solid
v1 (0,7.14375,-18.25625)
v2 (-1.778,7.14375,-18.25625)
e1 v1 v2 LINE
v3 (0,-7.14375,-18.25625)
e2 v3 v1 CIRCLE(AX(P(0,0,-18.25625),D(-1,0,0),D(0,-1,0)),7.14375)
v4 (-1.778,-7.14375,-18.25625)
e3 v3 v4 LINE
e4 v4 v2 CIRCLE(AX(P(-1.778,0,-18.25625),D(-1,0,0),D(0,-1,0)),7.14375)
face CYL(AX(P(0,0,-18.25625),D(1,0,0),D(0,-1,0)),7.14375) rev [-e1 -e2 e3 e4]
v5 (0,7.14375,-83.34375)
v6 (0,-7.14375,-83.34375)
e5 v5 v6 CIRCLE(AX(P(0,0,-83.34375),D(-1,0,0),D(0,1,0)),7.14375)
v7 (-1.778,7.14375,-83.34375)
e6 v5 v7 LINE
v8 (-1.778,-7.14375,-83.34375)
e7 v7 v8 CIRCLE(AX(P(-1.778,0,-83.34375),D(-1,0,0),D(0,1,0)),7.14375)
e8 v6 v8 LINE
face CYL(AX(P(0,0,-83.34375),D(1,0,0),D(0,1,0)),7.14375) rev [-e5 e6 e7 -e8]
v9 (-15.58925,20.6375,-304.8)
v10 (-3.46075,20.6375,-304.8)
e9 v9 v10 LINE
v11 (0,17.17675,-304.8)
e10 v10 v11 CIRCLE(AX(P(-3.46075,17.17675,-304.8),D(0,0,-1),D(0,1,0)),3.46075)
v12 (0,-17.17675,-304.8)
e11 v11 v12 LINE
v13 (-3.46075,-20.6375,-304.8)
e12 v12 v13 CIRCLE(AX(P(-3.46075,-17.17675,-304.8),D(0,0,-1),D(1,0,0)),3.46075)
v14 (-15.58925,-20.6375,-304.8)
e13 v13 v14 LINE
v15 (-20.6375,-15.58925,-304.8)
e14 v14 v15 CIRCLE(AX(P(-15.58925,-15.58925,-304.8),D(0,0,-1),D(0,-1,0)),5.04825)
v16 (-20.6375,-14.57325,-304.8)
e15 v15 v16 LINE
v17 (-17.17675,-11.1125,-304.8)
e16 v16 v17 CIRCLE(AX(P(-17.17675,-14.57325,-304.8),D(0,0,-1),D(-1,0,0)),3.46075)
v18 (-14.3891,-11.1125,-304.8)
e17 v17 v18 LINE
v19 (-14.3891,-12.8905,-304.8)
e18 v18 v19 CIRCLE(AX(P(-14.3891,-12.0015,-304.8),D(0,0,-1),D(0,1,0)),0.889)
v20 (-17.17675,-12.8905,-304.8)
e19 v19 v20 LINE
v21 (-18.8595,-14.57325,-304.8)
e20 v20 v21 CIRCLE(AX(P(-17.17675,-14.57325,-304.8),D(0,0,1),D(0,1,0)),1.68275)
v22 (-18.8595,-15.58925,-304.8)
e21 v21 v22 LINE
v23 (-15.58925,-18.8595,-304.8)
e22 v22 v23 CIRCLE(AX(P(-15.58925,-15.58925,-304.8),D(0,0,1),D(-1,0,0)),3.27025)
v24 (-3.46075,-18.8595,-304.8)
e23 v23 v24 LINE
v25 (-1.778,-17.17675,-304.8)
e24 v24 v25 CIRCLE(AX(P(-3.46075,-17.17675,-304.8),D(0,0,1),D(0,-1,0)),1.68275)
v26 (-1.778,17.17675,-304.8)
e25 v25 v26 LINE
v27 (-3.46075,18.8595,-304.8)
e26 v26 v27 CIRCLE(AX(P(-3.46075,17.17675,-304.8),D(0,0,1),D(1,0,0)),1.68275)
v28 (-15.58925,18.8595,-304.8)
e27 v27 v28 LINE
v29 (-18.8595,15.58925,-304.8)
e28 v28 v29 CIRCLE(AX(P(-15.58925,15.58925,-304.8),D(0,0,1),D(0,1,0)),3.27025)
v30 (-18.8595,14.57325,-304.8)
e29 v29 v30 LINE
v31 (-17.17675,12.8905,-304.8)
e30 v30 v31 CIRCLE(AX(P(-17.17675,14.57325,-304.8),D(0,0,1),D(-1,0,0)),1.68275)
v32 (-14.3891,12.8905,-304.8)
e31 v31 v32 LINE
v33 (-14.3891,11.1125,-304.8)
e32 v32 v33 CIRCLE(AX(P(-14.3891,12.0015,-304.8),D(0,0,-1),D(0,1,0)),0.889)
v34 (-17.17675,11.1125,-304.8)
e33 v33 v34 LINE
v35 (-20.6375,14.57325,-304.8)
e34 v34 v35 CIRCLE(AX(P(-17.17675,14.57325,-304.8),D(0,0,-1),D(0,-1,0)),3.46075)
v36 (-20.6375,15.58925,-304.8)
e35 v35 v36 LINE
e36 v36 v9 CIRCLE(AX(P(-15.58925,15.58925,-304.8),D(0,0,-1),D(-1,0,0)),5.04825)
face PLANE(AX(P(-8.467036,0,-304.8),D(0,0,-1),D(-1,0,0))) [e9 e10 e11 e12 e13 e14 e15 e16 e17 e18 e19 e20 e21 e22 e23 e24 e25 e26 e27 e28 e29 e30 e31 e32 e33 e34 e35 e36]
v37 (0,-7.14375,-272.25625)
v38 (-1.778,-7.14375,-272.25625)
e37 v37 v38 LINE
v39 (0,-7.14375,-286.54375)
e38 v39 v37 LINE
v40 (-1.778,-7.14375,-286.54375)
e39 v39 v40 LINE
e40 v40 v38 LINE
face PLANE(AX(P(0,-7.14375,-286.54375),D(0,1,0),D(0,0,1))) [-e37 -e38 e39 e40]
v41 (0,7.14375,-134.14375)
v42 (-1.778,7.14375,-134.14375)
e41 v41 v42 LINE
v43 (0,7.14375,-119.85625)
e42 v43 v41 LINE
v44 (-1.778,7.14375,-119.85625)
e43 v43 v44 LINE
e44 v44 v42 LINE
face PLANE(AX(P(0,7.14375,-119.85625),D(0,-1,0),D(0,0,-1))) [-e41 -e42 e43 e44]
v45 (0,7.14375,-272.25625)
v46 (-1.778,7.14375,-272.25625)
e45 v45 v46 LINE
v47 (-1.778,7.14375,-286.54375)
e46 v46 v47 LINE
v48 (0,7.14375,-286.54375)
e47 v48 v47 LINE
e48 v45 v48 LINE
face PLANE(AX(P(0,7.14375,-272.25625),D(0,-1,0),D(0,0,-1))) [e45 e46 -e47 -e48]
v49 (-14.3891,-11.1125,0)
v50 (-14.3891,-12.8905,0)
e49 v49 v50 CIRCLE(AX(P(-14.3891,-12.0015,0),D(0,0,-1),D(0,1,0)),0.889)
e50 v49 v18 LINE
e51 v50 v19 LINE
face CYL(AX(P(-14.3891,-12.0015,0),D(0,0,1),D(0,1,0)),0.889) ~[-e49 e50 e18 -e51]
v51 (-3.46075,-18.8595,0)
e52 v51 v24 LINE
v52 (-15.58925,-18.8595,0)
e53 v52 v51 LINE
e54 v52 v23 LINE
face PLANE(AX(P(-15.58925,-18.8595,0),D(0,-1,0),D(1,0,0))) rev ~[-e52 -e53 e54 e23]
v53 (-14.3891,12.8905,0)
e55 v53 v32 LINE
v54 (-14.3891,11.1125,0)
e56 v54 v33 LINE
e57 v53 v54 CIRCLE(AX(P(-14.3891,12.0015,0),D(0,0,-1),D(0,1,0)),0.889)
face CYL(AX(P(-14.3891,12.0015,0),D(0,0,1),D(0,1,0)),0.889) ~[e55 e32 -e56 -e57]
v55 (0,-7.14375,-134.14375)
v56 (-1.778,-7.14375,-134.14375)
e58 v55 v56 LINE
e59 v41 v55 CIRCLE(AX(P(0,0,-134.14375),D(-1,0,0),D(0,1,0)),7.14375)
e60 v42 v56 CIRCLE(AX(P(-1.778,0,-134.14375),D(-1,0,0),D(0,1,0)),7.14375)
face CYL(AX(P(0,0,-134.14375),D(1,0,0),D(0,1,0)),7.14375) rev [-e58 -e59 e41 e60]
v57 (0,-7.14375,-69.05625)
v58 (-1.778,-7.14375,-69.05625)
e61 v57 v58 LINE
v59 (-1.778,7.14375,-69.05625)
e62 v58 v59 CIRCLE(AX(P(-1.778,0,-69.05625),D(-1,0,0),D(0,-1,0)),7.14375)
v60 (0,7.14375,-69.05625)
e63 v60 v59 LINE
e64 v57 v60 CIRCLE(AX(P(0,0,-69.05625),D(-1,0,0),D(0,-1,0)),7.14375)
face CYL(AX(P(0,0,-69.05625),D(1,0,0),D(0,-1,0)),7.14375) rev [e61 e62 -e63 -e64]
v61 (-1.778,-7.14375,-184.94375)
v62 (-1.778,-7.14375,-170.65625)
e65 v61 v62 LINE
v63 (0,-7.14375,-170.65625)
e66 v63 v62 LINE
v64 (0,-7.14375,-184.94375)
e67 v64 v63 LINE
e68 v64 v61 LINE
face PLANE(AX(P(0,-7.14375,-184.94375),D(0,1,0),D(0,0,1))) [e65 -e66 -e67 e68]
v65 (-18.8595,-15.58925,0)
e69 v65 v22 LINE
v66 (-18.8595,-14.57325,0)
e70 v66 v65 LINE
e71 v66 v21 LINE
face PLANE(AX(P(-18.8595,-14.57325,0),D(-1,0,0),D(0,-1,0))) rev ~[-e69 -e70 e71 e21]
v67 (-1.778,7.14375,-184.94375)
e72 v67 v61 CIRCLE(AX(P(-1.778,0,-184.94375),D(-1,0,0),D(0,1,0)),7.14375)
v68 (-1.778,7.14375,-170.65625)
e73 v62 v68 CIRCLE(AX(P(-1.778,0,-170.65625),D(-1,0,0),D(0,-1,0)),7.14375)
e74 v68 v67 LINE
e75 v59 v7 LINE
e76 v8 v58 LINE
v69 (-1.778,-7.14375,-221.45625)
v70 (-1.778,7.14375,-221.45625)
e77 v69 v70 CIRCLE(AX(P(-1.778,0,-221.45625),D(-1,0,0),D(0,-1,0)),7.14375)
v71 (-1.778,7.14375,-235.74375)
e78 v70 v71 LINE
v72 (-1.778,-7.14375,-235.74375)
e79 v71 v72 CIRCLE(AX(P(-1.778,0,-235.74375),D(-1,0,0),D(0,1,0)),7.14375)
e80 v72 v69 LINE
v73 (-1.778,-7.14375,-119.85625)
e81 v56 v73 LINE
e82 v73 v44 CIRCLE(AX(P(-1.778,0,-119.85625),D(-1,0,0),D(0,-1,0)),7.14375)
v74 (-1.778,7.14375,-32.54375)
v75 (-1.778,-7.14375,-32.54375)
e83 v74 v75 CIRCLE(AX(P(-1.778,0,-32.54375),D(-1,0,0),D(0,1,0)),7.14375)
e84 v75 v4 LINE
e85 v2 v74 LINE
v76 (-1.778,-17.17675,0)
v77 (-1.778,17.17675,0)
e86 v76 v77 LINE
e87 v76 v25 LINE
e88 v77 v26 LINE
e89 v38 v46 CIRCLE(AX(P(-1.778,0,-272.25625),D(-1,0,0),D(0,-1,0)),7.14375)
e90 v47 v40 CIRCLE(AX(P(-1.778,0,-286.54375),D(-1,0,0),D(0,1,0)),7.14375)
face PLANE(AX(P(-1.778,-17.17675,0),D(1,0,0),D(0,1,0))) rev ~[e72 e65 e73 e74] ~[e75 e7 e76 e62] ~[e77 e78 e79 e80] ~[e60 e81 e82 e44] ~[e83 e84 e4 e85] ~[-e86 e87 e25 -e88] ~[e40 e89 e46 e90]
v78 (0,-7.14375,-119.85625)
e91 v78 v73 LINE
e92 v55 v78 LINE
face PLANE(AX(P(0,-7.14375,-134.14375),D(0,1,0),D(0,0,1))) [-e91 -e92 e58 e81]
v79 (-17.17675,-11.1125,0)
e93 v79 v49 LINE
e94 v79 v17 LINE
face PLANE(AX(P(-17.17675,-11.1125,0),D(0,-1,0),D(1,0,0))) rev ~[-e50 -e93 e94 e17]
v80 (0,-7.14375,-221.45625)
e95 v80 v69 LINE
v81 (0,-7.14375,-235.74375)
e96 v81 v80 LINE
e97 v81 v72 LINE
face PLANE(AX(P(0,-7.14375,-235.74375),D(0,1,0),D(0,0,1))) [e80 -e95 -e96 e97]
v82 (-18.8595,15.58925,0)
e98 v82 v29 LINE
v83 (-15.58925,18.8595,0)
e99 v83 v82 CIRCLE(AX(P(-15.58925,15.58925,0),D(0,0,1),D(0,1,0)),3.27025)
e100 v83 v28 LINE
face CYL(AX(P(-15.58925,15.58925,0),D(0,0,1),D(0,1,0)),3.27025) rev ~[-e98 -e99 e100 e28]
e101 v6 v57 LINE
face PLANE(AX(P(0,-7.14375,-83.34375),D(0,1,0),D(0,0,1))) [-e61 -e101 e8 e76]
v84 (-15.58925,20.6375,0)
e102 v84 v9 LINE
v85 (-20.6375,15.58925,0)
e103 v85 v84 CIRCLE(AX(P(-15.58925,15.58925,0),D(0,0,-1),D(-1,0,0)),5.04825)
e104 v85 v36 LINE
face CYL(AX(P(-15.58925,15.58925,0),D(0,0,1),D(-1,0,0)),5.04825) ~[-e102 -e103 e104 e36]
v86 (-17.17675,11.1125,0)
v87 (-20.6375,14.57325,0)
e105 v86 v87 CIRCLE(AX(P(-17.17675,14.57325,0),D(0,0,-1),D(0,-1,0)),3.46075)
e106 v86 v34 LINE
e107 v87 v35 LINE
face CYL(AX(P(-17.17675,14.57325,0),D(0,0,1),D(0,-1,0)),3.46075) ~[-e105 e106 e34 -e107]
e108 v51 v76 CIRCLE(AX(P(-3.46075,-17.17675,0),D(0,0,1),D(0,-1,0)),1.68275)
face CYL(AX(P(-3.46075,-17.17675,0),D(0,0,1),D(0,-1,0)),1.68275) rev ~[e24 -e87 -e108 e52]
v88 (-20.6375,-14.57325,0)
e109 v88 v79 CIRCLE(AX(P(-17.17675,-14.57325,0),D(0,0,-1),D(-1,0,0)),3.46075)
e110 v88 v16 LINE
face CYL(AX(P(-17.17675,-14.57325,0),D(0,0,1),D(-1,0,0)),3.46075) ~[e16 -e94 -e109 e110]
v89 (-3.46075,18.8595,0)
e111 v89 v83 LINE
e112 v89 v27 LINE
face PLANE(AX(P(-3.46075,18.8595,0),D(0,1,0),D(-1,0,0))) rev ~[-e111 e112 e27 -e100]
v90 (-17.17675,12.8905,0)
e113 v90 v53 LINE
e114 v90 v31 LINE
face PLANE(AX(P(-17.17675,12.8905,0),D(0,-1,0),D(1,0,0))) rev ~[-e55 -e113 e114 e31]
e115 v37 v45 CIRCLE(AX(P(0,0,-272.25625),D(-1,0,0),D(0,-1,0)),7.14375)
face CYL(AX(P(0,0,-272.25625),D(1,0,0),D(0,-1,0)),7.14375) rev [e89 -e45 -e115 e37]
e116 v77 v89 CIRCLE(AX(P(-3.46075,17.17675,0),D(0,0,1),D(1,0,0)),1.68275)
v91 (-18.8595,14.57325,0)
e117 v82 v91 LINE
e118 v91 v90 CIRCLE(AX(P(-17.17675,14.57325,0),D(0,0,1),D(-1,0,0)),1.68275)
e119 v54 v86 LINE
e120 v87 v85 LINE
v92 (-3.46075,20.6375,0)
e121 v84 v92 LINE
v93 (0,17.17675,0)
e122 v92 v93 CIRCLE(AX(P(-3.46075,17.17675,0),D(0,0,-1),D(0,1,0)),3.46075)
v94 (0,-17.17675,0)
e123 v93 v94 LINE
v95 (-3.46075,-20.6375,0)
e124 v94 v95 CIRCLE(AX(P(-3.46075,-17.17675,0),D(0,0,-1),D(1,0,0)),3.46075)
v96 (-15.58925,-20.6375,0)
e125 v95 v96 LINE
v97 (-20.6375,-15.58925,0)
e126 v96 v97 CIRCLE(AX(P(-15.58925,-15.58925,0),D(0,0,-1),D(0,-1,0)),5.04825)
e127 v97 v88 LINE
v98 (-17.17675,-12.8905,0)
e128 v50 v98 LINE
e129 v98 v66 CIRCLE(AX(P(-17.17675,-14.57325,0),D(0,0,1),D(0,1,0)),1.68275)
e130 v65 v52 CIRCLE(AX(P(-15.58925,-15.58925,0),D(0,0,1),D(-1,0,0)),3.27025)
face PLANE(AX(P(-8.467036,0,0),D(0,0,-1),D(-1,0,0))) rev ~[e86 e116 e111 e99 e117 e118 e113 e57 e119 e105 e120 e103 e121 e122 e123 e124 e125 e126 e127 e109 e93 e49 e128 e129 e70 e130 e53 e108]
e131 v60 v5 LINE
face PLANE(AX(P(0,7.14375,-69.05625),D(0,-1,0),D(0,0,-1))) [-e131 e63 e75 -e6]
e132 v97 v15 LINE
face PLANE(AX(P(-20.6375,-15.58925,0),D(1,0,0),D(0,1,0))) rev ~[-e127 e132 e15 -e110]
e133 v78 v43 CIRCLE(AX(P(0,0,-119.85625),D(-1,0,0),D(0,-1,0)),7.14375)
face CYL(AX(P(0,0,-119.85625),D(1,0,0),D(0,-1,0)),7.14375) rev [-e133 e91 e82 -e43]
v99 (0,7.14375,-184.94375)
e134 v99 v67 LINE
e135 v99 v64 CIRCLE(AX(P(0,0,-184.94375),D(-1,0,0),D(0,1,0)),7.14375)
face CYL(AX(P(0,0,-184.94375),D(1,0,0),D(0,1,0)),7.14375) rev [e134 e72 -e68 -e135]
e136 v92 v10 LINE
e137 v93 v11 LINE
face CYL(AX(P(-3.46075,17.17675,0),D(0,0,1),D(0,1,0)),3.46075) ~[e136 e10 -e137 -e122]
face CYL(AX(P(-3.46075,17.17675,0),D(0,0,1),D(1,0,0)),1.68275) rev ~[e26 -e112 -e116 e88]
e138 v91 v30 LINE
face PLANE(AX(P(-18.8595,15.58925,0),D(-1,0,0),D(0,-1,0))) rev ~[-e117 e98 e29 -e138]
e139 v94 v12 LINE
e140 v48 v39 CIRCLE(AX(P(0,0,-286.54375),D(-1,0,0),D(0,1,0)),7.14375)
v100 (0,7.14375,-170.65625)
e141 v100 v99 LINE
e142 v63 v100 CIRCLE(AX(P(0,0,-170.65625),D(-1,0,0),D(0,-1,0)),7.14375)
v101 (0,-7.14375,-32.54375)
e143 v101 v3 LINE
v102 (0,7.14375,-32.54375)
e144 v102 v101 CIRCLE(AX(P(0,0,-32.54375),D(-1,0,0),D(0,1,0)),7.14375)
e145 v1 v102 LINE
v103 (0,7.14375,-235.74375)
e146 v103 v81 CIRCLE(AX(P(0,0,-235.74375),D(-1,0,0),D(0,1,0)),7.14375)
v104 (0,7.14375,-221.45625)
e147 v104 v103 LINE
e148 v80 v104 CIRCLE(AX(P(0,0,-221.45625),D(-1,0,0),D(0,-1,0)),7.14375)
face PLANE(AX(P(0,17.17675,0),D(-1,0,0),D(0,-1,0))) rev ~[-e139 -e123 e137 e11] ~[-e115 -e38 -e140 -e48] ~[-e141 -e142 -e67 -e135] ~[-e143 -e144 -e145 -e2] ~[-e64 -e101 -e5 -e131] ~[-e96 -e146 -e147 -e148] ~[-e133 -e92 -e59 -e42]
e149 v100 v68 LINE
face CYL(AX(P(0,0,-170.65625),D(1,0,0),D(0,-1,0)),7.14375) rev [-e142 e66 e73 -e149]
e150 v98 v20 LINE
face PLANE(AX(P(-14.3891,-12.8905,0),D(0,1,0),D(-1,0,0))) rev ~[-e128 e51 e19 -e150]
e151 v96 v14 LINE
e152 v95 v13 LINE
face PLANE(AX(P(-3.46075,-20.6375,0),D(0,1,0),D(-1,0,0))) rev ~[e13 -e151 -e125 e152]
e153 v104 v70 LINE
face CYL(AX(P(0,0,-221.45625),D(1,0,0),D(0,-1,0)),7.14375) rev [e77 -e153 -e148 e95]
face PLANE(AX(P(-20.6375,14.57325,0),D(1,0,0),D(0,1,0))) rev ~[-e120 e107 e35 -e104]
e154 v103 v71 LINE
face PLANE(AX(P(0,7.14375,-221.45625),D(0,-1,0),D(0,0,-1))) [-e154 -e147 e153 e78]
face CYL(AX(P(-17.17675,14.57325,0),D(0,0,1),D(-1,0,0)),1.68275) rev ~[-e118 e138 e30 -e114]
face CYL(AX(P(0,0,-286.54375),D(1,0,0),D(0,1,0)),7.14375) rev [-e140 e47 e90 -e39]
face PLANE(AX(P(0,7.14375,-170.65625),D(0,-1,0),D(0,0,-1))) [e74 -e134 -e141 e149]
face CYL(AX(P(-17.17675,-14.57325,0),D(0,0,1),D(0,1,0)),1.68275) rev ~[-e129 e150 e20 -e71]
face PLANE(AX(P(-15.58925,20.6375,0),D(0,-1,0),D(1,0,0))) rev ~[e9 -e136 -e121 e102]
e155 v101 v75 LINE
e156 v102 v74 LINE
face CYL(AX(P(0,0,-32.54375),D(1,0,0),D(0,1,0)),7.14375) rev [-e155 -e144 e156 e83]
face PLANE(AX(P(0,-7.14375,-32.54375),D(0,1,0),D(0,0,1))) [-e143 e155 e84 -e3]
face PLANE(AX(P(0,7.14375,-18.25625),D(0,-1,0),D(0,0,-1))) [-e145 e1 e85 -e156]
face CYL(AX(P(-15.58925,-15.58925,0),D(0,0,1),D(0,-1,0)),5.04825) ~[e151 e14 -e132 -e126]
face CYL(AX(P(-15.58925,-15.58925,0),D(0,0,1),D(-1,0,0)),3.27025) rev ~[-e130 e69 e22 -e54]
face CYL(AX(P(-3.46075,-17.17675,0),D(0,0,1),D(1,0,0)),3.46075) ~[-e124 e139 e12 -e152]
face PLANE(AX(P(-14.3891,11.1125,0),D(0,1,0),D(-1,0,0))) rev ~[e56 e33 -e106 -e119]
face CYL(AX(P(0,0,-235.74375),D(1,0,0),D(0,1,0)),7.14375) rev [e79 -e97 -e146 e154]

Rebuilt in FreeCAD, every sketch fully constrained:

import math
import FreeCAD as App
import Part
import Sketcher

V = App.Vector
Q = App.Units.Quantity

doc = App.newDocument("Part")
params = doc.addObject("Spreadsheet::Sheet", "Params")
for row, (alias, value) in enumerate([
    ("sketch1_radius", "0.035 in"),
    ("sketch1_height", "0.04 in"),
    ("pad1_length", "12 in"),
    ("sketch2_radius", "0.28125 in"),
    ("sketch2_height", "0.5625 in"),
    ("pocket1_length", "0.07 in"),
    ("linearpattern_pitch", "2 in"),
], start=1):
    params.set(f"A{row}", alias)
    params.set(f"B{row}", "=" + value)
    params.setAlias(f"B{row}", alias)

body = doc.addObject("PartDesign::Body", "Body")

sketch1 = body.newObject("Sketcher::SketchObject", "Sketch")
sketch1.AttachmentSupport = (doc.getObject("XY_Plane"), [""])
sketch1.MapMode = "FlatFace"
sketch1.addGeometry([
    Part.LineSegment(V(-3.46075, 20.6375, 0), V(-15.58925, 20.6375, 0)),
    Part.ArcOfCircle(Part.Circle(V(-15.58925, 15.58925, 0), V(0, 0, 1), 5.04825), math.radians(90), math.radians(180)),
    Part.LineSegment(V(-20.6375, 15.58925, 0), V(-20.6375, 14.57325, 0)),
    Part.ArcOfCircle(Part.Circle(V(-17.17675, 14.57325, 0), V(0, 0, 1), 3.46075), math.radians(180), math.radians(270)),
    Part.LineSegment(V(-17.17675, 11.1125, 0), V(-14.3891, 11.1125, 0)),
    Part.ArcOfCircle(Part.Circle(V(-14.3891, 12.0015, 0), V(0, 0, 1), 0.889), math.radians(-90), math.radians(90)),
    Part.LineSegment(V(-14.3891, 12.8905, 0), V(-17.17675, 12.8905, 0)),
    Part.ArcOfCircle(Part.Circle(V(-17.17675, 14.57325, 0), V(0, 0, 1), 1.68275), math.radians(180), math.radians(270)),
    Part.LineSegment(V(-18.8595, 14.57325, 0), V(-18.8595, 15.58925, 0)),
    Part.ArcOfCircle(Part.Circle(V(-15.58925, 15.58925, 0), V(0, 0, 1), 3.27025), math.radians(90), math.radians(180)),
    Part.LineSegment(V(-15.58925, 18.8595, 0), V(-3.46075, 18.8595, 0)),
    Part.ArcOfCircle(Part.Circle(V(-3.46075, 17.17675, 0), V(0, 0, 1), 1.68275), math.radians(0), math.radians(90)),
    Part.LineSegment(V(-1.778, 17.17675, 0), V(-1.778, -17.17675, 0)),
    Part.ArcOfCircle(Part.Circle(V(-3.46075, -17.17675, 0), V(0, 0, 1), 1.68275), math.radians(-90), math.radians(0)),
    Part.LineSegment(V(-3.46075, -18.8595, 0), V(-15.58925, -18.8595, 0)),
    Part.ArcOfCircle(Part.Circle(V(-15.58925, -15.58925, 0), V(0, 0, 1), 3.27025), math.radians(-180), math.radians(-90)),
    Part.LineSegment(V(-18.8595, -15.58925, 0), V(-18.8595, -14.57325, 0)),
    Part.ArcOfCircle(Part.Circle(V(-17.17675, -14.57325, 0), V(0, 0, 1), 1.68275), math.radians(90), math.radians(180)),
    Part.LineSegment(V(-17.17675, -12.8905, 0), V(-14.3891, -12.8905, 0)),
    Part.ArcOfCircle(Part.Circle(V(-14.3891, -12.0015, 0), V(0, 0, 1), 0.889), math.radians(-90), math.radians(90)),
    Part.LineSegment(V(-14.3891, -11.1125, 0), V(-17.17675, -11.1125, 0)),
    Part.ArcOfCircle(Part.Circle(V(-17.17675, -14.57325, 0), V(0, 0, 1), 3.46075), math.radians(90), math.radians(180)),
    Part.LineSegment(V(-20.6375, -14.57325, 0), V(-20.6375, -15.58925, 0)),
    Part.ArcOfCircle(Part.Circle(V(-15.58925, -15.58925, 0), V(0, 0, 1), 5.04825), math.radians(180), math.radians(270)),
    Part.LineSegment(V(-15.58925, -20.6375, 0), V(-3.46075, -20.6375, 0)),
    Part.ArcOfCircle(Part.Circle(V(-3.46075, -17.17675, 0), V(0, 0, 1), 3.46075), math.radians(-90), math.radians(0)),
    Part.LineSegment(V(0, -17.17675, 0), V(0, 17.17675, 0)),
    Part.ArcOfCircle(Part.Circle(V(-3.46075, 17.17675, 0), V(0, 0, 1), 3.46075), math.radians(0), math.radians(90)),
], False)
sketch1.addConstraint([
    Sketcher.Constraint("Tangent", 0, 2, 1, 1),
    Sketcher.Constraint("Tangent", 1, 2, 2, 1),
    Sketcher.Constraint("Tangent", 2, 2, 3, 1),
    Sketcher.Constraint("Tangent", 3, 2, 4, 1),
    Sketcher.Constraint("Tangent", 4, 2, 5, 1),
    Sketcher.Constraint("Tangent", 5, 2, 6, 1),
    Sketcher.Constraint("Tangent", 6, 2, 7, 2),
    Sketcher.Constraint("Tangent", 7, 1, 8, 1),
    Sketcher.Constraint("Tangent", 8, 2, 9, 2),
    Sketcher.Constraint("Tangent", 9, 1, 10, 1),
    Sketcher.Constraint("Tangent", 10, 2, 11, 2),
    Sketcher.Constraint("Tangent", 11, 1, 12, 1),
    Sketcher.Constraint("Tangent", 12, 2, 13, 2),
    Sketcher.Constraint("Tangent", 13, 1, 14, 1),
    Sketcher.Constraint("Tangent", 14, 2, 15, 2),
    Sketcher.Constraint("Tangent", 15, 1, 16, 1),
    Sketcher.Constraint("Tangent", 16, 2, 17, 2),
    Sketcher.Constraint("Tangent", 17, 1, 18, 1),
    Sketcher.Constraint("Tangent", 18, 2, 19, 1),
    Sketcher.Constraint("Tangent", 19, 2, 20, 1),
    Sketcher.Constraint("Tangent", 20, 2, 21, 1),
    Sketcher.Constraint("Tangent", 21, 2, 22, 1),
    Sketcher.Constraint("Tangent", 22, 2, 23, 1),
    Sketcher.Constraint("Tangent", 23, 2, 24, 1),
    Sketcher.Constraint("Tangent", 24, 2, 25, 1),
    Sketcher.Constraint("Tangent", 25, 2, 26, 1),
    Sketcher.Constraint("Tangent", 26, 2, 27, 1),
    Sketcher.Constraint("Tangent", 27, 2, 0, 1),
    Sketcher.Constraint("Horizontal", 0),
    Sketcher.Constraint("Vertical", 2),
    Sketcher.Constraint("Horizontal", 4),
    Sketcher.Constraint("Horizontal", 6),
    Sketcher.Constraint("Vertical", 8),
    Sketcher.Constraint("Horizontal", 10),
    Sketcher.Constraint("Vertical", 12),
    Sketcher.Constraint("Horizontal", 14),
    Sketcher.Constraint("Vertical", 16),
    Sketcher.Constraint("Horizontal", 18),
    Sketcher.Constraint("Horizontal", 20),
    Sketcher.Constraint("Vertical", 22),
    Sketcher.Constraint("Horizontal", 24),
    Sketcher.Constraint("Vertical", 26),
    Sketcher.Constraint("Coincident", 7, 3, 3, 3),
    Sketcher.Constraint("Coincident", 9, 3, 1, 3),
    Sketcher.Constraint("Coincident", 21, 3, 17, 3),
    Sketcher.Constraint("Coincident", 23, 3, 15, 3),
    Sketcher.Constraint("Coincident", 25, 3, 13, 3),
    Sketcher.Constraint("Coincident", 27, 3, 11, 3),
    Sketcher.Constraint("Equal", 7, 11),
    Sketcher.Constraint("Equal", 11, 13),
    Sketcher.Constraint("Equal", 9, 15),
    Sketcher.Constraint("Equal", 13, 17),
    Sketcher.Constraint("Symmetric", 25, 2, 26, 2, -1, 1),
    Sketcher.Constraint("Symmetric", 3, 3, 17, 3, -1),
    Sketcher.Constraint("Vertical", 5, 3, 19, 3),
    Sketcher.Constraint("Radius", 5, Q("0.035 in")),
    Sketcher.Constraint("DistanceY", 2, 2, 2, 1, Q("0.04 in")),
    Sketcher.Constraint("DistanceX", 3, 3, 11, 3, Q("0.54 in")),
    Sketcher.Constraint("DistanceY", 13, 3, 3, 3, Q("1.25 in")),
    Sketcher.Constraint("DistanceY", 5, 3, 0, 2, Q("0.34 in")),
    Sketcher.Constraint("DistanceX", 0, 2, 0, 1, Q("0.4775 in")),
    Sketcher.Constraint("DistanceX", 5, 3, -1, 1, Q("0.5665 in")),
])
sketch1.setExpression("Constraints[55]", "Params.sketch1_radius")
sketch1.setExpression("Constraints[56]", "Params.sketch1_height")
pad1 = body.newObject("PartDesign::Pad", "Pad")
pad1.Profile = sketch1
pad1.setExpression("Length", "Params.pad1_length")
pad1.Reversed = True

sketch2 = body.newObject("Sketcher::SketchObject", "Sketch001")
sketch2.AttachmentSupport = (doc.getObject("YZ_Plane"), [""])
sketch2.MapMode = "FlatFace"
sketch2.addGeometry([
    Part.LineSegment(V(7.14375, -32.54375, 0), V(7.14375, -18.25625, 0)),
    Part.ArcOfCircle(Part.Circle(V(0, -18.25625, 0), V(0, 0, 1), 7.14375), math.radians(0), math.radians(180)),
    Part.LineSegment(V(-7.14375, -18.25625, 0), V(-7.14375, -32.54375, 0)),
    Part.ArcOfCircle(Part.Circle(V(0, -32.54375, 0), V(0, 0, 1), 7.14375), math.radians(180), math.radians(360)),
], False)
sketch2.addConstraint([
    Sketcher.Constraint("Tangent", 0, 2, 1, 1),
    Sketcher.Constraint("Tangent", 1, 2, 2, 1),
    Sketcher.Constraint("Tangent", 2, 2, 3, 1),
    Sketcher.Constraint("Tangent", 3, 2, 0, 1),
    Sketcher.Constraint("Vertical", 0),
    Sketcher.Constraint("Vertical", 2),
    Sketcher.Constraint("PointOnObject", 1, 3, -2),
    Sketcher.Constraint("Radius", 1, Q("0.28125 in")),
    Sketcher.Constraint("DistanceY", 0, 1, 0, 2, Q("0.5625 in")),
    Sketcher.Constraint("DistanceY", 1, 3, -1, 1, Q("0.71875 in")),
])
sketch2.setExpression("Constraints[7]", "Params.sketch2_radius")
sketch2.setExpression("Constraints[8]", "Params.sketch2_height")
pocket1 = body.newObject("PartDesign::Pocket", "Pocket")
pocket1.Profile = sketch2
pocket1.setExpression("Length", "Params.pocket1_length")
doc.recompute()

linearpattern = body.newObject("PartDesign::LinearPattern", "LinearPattern")
linearpattern.Originals = [pocket1]
linearpattern.Direction = (doc.getObject("Z_Axis"), [""])
linearpattern.Mode = "offset"
linearpattern.setExpression("Offset", "Params.linearpattern_pitch")
linearpattern.Occurrences = 6
linearpattern.Reversed = True
body.Tip = linearpattern

doc.recompute()
